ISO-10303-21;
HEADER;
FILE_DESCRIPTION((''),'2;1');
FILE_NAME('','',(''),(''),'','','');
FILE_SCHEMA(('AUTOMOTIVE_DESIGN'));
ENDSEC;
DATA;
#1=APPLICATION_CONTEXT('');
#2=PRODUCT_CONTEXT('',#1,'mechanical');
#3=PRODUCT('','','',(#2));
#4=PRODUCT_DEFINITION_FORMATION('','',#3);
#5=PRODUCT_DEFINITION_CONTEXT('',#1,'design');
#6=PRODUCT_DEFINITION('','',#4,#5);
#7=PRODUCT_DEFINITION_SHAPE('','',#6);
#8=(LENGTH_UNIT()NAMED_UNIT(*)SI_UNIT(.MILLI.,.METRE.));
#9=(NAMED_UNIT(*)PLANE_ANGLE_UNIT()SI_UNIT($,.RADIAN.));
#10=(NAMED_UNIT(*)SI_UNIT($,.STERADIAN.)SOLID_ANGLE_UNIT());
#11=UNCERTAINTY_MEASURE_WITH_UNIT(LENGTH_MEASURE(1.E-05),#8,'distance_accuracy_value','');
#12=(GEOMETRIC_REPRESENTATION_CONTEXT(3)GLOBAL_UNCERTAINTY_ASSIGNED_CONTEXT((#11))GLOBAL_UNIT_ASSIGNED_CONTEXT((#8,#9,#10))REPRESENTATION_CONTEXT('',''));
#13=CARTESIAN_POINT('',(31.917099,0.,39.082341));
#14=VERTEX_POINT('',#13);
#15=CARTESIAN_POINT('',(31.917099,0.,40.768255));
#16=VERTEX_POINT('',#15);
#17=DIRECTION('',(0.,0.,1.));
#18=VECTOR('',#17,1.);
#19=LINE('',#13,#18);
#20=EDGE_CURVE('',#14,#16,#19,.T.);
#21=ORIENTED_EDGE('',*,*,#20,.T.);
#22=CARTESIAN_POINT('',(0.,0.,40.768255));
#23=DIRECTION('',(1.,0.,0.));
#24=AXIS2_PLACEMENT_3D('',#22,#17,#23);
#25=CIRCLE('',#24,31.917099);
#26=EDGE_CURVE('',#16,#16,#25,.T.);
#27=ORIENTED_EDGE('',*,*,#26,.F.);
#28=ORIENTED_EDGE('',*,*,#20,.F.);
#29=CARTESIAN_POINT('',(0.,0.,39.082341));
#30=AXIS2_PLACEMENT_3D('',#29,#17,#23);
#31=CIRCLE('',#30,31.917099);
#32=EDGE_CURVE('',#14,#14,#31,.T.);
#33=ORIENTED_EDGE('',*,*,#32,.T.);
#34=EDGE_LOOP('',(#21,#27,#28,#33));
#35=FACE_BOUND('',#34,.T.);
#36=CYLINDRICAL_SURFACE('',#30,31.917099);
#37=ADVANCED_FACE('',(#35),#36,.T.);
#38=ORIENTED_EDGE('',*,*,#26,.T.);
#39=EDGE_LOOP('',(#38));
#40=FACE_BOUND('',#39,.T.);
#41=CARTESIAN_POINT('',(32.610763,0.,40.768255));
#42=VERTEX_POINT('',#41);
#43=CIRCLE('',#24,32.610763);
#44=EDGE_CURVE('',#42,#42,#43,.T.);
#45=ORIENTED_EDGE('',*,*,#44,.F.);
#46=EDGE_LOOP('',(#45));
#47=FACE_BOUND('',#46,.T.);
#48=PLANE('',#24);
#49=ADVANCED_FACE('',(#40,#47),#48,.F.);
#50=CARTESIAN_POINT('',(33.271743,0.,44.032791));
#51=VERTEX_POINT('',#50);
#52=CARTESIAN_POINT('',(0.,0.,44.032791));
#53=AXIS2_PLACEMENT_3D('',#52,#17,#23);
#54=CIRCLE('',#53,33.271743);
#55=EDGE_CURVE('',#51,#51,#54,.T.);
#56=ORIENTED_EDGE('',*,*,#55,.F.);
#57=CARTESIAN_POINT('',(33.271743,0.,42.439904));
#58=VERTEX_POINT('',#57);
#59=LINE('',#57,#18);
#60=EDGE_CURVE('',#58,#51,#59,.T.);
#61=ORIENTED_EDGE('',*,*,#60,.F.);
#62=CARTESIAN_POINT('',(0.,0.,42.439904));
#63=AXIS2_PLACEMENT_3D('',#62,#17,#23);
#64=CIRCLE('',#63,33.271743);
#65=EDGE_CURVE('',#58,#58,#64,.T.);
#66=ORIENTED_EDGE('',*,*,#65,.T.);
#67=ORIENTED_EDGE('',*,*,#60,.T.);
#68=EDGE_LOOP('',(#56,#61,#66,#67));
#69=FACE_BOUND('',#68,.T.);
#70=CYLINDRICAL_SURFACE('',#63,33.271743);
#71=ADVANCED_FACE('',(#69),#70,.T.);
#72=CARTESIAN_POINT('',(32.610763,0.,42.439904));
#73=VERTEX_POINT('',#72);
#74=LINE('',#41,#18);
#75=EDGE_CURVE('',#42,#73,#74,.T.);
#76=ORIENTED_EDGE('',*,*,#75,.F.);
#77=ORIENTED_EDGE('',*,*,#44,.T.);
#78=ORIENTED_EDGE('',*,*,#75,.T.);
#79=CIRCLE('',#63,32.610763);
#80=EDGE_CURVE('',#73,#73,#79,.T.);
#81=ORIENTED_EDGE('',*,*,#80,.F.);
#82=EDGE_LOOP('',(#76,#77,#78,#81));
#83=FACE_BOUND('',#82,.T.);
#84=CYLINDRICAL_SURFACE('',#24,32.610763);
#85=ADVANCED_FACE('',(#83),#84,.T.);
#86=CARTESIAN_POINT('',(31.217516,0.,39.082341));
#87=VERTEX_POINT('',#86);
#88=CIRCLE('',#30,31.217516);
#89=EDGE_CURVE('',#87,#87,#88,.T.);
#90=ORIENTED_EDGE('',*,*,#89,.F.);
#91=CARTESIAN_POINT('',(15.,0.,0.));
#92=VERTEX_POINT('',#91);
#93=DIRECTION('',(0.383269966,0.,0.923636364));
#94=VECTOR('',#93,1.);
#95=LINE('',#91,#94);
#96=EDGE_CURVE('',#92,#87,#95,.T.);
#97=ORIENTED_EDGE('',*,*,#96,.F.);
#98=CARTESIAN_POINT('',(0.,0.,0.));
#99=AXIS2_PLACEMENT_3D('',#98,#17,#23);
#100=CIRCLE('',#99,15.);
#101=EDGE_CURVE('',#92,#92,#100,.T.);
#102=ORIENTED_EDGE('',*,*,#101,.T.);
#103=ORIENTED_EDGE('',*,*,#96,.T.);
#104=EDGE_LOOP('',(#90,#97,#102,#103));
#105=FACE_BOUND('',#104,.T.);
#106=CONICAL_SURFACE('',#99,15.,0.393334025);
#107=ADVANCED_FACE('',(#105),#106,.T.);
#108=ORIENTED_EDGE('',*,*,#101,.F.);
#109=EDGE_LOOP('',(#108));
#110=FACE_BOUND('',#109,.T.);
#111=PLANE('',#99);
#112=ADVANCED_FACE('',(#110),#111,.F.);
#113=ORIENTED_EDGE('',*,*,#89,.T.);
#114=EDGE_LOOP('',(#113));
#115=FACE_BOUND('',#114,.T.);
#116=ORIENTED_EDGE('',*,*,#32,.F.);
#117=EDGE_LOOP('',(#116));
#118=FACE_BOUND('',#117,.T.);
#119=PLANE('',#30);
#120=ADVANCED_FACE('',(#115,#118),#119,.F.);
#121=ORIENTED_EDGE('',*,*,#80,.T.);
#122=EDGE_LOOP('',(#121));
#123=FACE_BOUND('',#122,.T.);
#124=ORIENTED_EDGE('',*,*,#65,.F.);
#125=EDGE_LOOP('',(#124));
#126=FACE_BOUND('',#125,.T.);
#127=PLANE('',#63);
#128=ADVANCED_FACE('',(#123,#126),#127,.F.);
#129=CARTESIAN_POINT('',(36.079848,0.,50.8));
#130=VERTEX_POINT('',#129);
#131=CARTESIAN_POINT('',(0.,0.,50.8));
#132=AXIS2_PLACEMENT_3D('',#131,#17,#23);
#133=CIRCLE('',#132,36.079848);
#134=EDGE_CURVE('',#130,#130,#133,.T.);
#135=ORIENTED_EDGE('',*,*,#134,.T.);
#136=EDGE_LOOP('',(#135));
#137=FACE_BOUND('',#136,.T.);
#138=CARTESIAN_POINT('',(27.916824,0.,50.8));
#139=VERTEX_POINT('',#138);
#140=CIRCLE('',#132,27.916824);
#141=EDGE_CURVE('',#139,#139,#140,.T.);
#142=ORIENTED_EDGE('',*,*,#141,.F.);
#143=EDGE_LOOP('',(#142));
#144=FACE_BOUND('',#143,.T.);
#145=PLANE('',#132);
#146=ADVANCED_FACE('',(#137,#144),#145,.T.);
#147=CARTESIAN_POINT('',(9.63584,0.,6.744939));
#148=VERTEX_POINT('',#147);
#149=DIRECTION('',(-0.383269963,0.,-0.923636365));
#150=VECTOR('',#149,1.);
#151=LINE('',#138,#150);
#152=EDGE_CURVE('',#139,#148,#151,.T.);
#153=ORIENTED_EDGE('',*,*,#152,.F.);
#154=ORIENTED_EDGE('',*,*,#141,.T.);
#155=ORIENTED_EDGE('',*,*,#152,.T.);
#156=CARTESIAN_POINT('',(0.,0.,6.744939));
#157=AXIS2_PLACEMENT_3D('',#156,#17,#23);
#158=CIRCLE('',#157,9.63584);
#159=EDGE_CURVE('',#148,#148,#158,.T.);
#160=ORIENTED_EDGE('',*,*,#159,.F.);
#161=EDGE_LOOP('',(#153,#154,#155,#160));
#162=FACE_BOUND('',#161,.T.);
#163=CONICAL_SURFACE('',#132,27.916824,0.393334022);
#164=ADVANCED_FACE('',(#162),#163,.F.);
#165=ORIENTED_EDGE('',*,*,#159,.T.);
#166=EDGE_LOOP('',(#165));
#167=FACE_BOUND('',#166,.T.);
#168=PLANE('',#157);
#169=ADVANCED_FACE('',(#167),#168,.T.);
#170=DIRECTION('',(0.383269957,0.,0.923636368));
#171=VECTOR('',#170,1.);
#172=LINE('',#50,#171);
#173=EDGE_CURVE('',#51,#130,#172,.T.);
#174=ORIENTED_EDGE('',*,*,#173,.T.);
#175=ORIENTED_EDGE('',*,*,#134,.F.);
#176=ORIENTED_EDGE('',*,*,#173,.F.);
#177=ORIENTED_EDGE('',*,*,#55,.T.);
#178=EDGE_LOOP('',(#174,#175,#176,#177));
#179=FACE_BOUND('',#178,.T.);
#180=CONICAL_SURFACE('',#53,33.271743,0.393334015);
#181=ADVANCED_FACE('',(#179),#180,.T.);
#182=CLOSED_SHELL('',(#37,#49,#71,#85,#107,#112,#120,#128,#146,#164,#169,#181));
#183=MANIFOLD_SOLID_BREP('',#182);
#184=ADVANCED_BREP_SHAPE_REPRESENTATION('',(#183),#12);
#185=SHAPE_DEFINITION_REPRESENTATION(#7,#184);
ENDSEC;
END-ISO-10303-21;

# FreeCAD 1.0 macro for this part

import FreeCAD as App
import Part
import Sketcher
Q = App.Units.Quantity


def add_polygon(sketch, points):
    """Adds a closed chain of lines whose ends are joined by coincident constraints."""
    first, n = sketch.GeometryCount, len(points)
    for a, b in zip(points, points[1:] + points[:1]):
        sketch.addGeometry(Part.LineSegment(App.Vector(*a, 0), App.Vector(*b, 0)), False)
    for i in range(n):
        sketch.addConstraint(Sketcher.Constraint("Coincident", first + i, 2, first + (i + 1) % n, 1))

doc = App.newDocument("Part")
body = doc.addObject("PartDesign::Body", "Body")

sketch1 = doc.addObject("Sketcher::SketchObject", "Sketch")
body.addObject(sketch1)
sketch1.AttachmentSupport = (doc.XZ_Plane, [""])
sketch1.MapMode = "FlatFace"
add_polygon(sketch1, [(0, 6.744939), (0, 0), (15, 0), (31.217516, 39.082341), (31.917099, 39.082341), (31.917099, 40.768255), (32.610763, 40.768255), (32.610763, 42.439904), (33.271743, 42.439904), (33.271743, 44.032791), (36.079848, 50.8), (27.916824, 50.8), (9.63584, 6.744939)])
sketch1.addConstraint([
    Sketcher.Constraint("Vertical", 0),
    Sketcher.Constraint("Horizontal", 1),
    Sketcher.Constraint("Horizontal", 3),
    Sketcher.Constraint("Vertical", 4),
    Sketcher.Constraint("Horizontal", 5),
    Sketcher.Constraint("Vertical", 6),
    Sketcher.Constraint("Horizontal", 7),
    Sketcher.Constraint("Vertical", 8),
    Sketcher.Constraint("Horizontal", 10),
    Sketcher.Constraint("Horizontal", 12),
    Sketcher.Constraint("Coincident", 0, 2, -1, 1),
    Sketcher.Constraint("Parallel", 2, 9),
    Sketcher.Constraint("Parallel", 9, 11),
    Sketcher.Constraint("DistanceX", 1, 1, 1, 2, Q("15 mm")),
    Sketcher.Constraint("DistanceY", -1, 1, 9, 2, Q("50.8 mm")),
    Sketcher.Constraint("DistanceX", 7, 1, 7, 2, Q("0.66098 mm")),
    Sketcher.Constraint("DistanceX", 12, 2, 12, 1, Q("9.63584 mm")),
    Sketcher.Constraint("DistanceY", 0, 2, 0, 1, Q("6.744939 mm")),
    Sketcher.Constraint("DistanceY", 6, 1, 6, 2, Q("1.671649 mm")),
    Sketcher.Constraint("DistanceX", -1, 1, 3, 2, Q("31.917099 mm")),
    Sketcher.Constraint("DistanceY", 11, 2, 2, 2, Q("32.337402 mm")),
    Sketcher.Constraint("Distance", 2, Q("42.313558 mm")),
    Sketcher.Constraint("DistanceX", 5, 1, 5, 2, Q("0.693664 mm")),
    Sketcher.Constraint("DistanceX", 10, 2, 10, 1, Q("8.163024 mm")),
    Sketcher.Constraint("DistanceY", 4, 1, 4, 2, Q("1.685914 mm")),
])
revolution = doc.addObject("PartDesign::Revolution", "Revolution")
body.addObject(revolution)
revolution.Profile = sketch1
revolution.ReferenceAxis = (sketch1, ["V_Axis"])
revolution.Angle = 360

doc.recompute()
